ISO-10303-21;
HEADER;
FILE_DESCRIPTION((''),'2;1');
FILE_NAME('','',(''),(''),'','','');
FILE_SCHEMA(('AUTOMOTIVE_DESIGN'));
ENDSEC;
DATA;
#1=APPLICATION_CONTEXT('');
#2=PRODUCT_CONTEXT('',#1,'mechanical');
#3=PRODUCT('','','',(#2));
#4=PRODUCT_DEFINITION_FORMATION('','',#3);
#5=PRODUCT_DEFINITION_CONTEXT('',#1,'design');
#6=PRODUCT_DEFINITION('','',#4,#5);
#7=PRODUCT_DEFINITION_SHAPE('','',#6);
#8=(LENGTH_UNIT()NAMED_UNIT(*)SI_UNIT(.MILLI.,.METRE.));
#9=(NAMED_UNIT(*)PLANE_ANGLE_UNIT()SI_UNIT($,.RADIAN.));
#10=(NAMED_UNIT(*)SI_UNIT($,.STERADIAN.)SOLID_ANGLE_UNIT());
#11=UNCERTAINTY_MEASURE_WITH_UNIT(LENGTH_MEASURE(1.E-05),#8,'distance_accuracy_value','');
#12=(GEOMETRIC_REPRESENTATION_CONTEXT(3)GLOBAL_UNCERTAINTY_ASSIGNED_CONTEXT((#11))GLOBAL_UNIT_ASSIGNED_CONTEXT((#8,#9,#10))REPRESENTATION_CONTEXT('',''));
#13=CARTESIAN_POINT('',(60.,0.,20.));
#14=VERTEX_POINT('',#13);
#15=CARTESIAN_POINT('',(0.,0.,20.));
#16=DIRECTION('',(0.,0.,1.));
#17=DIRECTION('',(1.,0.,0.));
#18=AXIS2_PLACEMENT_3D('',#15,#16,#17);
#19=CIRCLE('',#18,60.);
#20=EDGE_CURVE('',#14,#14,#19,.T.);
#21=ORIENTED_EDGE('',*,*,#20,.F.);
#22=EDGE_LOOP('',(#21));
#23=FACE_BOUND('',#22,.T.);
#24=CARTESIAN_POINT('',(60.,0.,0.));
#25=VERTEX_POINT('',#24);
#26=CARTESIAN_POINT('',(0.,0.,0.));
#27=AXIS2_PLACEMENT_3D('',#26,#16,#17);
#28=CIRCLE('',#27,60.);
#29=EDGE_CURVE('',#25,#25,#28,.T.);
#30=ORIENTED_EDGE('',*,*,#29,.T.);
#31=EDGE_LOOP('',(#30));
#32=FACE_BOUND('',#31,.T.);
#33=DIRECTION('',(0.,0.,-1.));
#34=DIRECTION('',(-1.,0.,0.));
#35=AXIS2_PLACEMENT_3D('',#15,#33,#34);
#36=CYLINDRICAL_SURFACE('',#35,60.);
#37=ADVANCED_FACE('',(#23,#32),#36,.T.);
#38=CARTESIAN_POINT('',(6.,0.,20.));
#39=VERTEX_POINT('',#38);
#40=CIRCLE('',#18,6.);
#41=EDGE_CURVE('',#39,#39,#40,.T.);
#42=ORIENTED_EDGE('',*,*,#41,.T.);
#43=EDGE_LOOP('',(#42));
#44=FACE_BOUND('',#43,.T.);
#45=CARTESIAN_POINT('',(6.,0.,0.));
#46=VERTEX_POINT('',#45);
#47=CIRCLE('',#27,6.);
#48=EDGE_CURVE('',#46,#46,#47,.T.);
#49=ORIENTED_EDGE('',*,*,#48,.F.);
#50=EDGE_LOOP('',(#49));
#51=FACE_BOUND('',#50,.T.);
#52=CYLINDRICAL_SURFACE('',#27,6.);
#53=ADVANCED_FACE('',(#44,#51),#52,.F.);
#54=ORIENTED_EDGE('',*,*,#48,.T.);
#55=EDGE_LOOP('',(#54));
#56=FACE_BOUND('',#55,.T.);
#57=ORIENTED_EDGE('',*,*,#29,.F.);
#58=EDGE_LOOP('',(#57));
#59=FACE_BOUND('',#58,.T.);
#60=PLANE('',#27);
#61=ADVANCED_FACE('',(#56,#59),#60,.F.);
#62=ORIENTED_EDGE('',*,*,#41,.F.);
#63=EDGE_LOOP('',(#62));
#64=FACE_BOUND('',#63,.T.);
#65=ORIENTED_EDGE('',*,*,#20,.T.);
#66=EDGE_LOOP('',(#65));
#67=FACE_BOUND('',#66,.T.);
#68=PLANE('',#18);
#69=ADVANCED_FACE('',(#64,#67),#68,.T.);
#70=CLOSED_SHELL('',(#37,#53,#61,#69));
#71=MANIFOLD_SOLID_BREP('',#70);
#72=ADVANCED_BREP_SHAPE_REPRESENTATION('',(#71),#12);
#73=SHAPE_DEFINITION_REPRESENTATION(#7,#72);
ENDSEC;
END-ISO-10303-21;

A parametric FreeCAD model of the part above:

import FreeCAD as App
import Part
import Sketcher
from FreeCAD import Vector

doc = App.newDocument("Part")
body = doc.addObject("PartDesign::Body", "Body")

# Sketch on XY plane
sketch1 = body.newObject("Sketcher::SketchObject", "Sketch")
sketch1.AttachmentSupport = (doc.getObject("XY_Plane"), [""])
sketch1.MapMode = "FlatFace"
sketch1.addGeometry(Part.Circle(Vector(0, 0, 0), Vector(0, 0, 1), 60), False)
sketch1.addConstraint([
    Sketcher.Constraint("Coincident", 0, 3, -1, 1),
    Sketcher.Constraint("Diameter", 0, 120.0),
])
pad1 = body.newObject("PartDesign::Pad", "Pad")
pad1.Profile = sketch1
pad1.Length = 20

# Sketch on XY plane
sketch2 = body.newObject("Sketcher::SketchObject", "Sketch001")
sketch2.AttachmentSupport = (doc.getObject("XY_Plane"), [""])
sketch2.MapMode = "FlatFace"
sketch2.AttachmentOffset = App.Placement(Vector(0, 0, 20), App.Rotation())
sketch2.addGeometry(Part.Circle(Vector(0, 0, 0), Vector(0, 0, 1), 6), False)
sketch2.addConstraint([
    Sketcher.Constraint("Coincident", 0, 3, -1, 1),
    Sketcher.Constraint("Diameter", 0, 12.0),
])
pocket1 = body.newObject("PartDesign::Pocket", "Pocket")
pocket1.Profile = sketch2
pocket1.Type = "ThroughAll"

doc.recompute()
